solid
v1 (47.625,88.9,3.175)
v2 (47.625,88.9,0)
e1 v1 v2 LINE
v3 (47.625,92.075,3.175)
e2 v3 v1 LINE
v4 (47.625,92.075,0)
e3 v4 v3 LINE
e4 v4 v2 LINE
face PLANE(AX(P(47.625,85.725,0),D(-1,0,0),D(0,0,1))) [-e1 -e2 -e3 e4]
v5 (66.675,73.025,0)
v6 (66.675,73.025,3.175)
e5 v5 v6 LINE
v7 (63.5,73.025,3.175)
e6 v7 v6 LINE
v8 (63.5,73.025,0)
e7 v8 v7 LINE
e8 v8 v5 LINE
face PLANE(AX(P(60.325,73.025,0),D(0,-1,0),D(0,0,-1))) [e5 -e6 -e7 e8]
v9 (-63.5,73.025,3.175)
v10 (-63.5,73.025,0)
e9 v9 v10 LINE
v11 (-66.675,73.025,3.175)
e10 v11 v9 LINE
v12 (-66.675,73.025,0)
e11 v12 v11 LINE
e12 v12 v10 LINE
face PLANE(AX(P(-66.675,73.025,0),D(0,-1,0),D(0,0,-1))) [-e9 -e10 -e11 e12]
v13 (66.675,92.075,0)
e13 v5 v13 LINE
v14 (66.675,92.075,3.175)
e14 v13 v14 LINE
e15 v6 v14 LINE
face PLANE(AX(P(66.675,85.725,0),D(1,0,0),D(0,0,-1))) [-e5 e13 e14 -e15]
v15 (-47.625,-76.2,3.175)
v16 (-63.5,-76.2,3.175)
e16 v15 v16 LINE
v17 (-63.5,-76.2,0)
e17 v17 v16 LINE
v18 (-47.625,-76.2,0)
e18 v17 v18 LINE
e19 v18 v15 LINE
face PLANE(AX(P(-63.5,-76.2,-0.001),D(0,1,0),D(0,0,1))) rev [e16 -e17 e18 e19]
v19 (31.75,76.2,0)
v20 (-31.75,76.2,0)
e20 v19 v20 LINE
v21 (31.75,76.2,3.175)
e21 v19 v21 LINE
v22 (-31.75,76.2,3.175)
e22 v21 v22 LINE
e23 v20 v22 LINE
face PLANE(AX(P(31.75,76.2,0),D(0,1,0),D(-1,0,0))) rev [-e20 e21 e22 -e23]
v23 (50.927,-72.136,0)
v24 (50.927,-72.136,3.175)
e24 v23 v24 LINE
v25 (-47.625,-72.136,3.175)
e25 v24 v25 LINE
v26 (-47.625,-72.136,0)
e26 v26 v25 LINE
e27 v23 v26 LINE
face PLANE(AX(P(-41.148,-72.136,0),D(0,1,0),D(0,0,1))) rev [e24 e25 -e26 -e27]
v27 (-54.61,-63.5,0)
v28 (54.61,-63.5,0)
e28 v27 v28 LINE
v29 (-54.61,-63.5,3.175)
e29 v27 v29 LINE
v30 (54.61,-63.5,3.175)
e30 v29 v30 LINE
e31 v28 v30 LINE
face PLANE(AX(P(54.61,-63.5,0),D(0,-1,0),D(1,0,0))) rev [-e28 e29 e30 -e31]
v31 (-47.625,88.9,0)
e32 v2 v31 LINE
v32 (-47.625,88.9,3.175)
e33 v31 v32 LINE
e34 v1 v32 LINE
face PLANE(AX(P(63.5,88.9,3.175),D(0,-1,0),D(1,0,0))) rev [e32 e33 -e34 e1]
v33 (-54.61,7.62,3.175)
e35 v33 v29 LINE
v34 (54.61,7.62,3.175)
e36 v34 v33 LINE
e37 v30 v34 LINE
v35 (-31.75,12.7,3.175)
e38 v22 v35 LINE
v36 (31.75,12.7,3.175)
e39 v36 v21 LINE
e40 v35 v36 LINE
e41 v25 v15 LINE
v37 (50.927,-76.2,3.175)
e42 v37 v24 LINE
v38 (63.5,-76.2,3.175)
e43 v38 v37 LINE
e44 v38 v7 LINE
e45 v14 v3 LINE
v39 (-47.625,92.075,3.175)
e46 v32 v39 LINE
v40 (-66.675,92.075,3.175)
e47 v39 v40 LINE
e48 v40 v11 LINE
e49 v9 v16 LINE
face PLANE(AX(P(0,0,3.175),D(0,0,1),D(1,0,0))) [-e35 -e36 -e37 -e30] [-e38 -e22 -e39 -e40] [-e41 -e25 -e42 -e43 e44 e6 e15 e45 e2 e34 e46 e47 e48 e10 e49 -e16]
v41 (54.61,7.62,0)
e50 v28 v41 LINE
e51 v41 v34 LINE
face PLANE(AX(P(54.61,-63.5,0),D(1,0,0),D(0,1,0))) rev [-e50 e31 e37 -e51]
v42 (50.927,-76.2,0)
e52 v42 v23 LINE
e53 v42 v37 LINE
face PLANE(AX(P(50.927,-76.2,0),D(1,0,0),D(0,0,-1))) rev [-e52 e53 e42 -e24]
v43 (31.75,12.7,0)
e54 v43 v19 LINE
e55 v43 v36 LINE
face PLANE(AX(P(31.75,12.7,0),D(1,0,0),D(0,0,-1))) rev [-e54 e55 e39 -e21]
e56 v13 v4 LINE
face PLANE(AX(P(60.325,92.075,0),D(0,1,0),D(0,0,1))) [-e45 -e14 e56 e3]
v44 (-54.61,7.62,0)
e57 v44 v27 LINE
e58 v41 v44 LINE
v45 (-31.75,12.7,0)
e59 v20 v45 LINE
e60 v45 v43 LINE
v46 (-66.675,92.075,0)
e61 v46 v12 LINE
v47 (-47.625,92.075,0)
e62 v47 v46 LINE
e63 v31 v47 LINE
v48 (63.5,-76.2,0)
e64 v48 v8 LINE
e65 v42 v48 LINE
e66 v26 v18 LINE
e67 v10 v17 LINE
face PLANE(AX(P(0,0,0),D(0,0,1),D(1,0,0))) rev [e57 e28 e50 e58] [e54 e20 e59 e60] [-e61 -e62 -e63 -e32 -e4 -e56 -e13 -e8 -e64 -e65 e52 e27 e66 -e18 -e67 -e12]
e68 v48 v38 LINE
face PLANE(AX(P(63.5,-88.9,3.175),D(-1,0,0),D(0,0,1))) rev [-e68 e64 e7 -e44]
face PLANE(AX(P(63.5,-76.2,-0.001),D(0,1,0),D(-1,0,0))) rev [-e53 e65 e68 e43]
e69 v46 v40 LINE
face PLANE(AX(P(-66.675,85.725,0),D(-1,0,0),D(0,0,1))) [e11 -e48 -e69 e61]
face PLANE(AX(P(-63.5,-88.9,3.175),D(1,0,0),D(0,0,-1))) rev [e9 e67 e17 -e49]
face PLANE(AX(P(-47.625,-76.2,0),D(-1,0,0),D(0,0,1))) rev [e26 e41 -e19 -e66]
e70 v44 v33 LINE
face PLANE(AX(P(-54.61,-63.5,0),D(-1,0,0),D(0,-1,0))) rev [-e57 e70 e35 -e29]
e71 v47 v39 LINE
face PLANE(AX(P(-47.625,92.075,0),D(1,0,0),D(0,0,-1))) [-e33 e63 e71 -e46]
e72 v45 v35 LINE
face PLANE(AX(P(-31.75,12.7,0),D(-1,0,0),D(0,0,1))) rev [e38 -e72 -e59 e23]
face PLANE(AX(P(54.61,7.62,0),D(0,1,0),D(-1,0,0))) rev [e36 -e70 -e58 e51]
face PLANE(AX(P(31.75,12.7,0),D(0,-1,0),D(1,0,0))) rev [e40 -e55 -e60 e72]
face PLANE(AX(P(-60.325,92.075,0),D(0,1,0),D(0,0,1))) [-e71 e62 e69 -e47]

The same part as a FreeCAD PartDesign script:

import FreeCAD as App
import Part
import Sketcher
from FreeCAD import Vector
Q = App.Units.Quantity

doc = App.newDocument("Part")
body = doc.addObject("PartDesign::Body", "Body")

# Sketch on XY plane
sketch1 = body.newObject("Sketcher::SketchObject", "Sketch")
sketch1.AttachmentSupport = (doc.getObject("XY_Plane"), [""])
sketch1.MapMode = "FlatFace"
sketch1.addGeometry(Part.LineSegment(Vector(-64, 89, 0), Vector(-64, -89, 0)), False)
sketch1.addGeometry(Part.LineSegment(Vector(-64, -89, 0), Vector(64, -89, 0)), False)
sketch1.addGeometry(Part.LineSegment(Vector(64, -89, 0), Vector(64, 89, 0)), False)
sketch1.addGeometry(Part.LineSegment(Vector(64, 89, 0), Vector(-64, 89, 0)), False)
sketch1.addConstraint(Sketcher.Constraint("Coincident", 0, 2, 1, 1))
sketch1.addConstraint(Sketcher.Constraint("Coincident", 1, 2, 2, 1))
sketch1.addConstraint(Sketcher.Constraint("Coincident", 2, 2, 3, 1))
sketch1.addConstraint(Sketcher.Constraint("Coincident", 3, 2, 0, 1))
sketch1.addConstraint(Sketcher.Constraint("Vertical", 0))
sketch1.addConstraint(Sketcher.Constraint("Horizontal", 1))
sketch1.addConstraint(Sketcher.Constraint("Vertical", 2))
sketch1.addConstraint(Sketcher.Constraint("Horizontal", 3))
sketch1.addConstraint(Sketcher.Constraint("Symmetric", 0, 2, 2, 2, -1, 1))
sketch1.addConstraint(Sketcher.Constraint("DistanceX", 1, 1, 1, 2, Q("5 in")))
sketch1.addConstraint(Sketcher.Constraint("DistanceY", 0, 2, 0, 1, Q("7 in")))
pad1 = body.newObject("PartDesign::Pad", "Pad")
pad1.Profile = sketch1
pad1.Length = Q("0.125 in")

# Sketch on XY plane
sketch2 = body.newObject("Sketcher::SketchObject", "Sketch001")
sketch2.AttachmentSupport = (doc.getObject("XY_Plane"), [""])
sketch2.MapMode = "FlatFace"
sketch2.AttachmentOffset = App.Placement(Vector(0, 0, 0.125 * 25.4), App.Rotation())
sketch2.addGeometry(Part.LineSegment(Vector(-32, 76, 0), Vector(-32, 13, 0)), False)
sketch2.addGeometry(Part.LineSegment(Vector(-32, 13, 0), Vector(32, 13, 0)), False)
sketch2.addGeometry(Part.LineSegment(Vector(32, 13, 0), Vector(32, 76, 0)), False)
sketch2.addGeometry(Part.LineSegment(Vector(32, 76, 0), Vector(-32, 76, 0)), False)
sketch2.addGeometry(Part.LineSegment(Vector(-55, 8, 0), Vector(-55, -64, 0)), False)
sketch2.addGeometry(Part.LineSegment(Vector(-55, -64, 0), Vector(55, -64, 0)), False)
sketch2.addGeometry(Part.LineSegment(Vector(55, -64, 0), Vector(55, 8, 0)), False)
sketch2.addGeometry(Part.LineSegment(Vector(55, 8, 0), Vector(-55, 8, 0)), False)
sketch2.addConstraint(Sketcher.Constraint("Coincident", 0, 2, 1, 1))
sketch2.addConstraint(Sketcher.Constraint("Coincident", 1, 2, 2, 1))
sketch2.addConstraint(Sketcher.Constraint("Coincident", 2, 2, 3, 1))
sketch2.addConstraint(Sketcher.Constraint("Coincident", 3, 2, 0, 1))
sketch2.addConstraint(Sketcher.Constraint("Coincident", 4, 2, 5, 1))
sketch2.addConstraint(Sketcher.Constraint("Coincident", 5, 2, 6, 1))
sketch2.addConstraint(Sketcher.Constraint("Coincident", 6, 2, 7, 1))
sketch2.addConstraint(Sketcher.Constraint("Coincident", 7, 2, 4, 1))
sketch2.addConstraint(Sketcher.Constraint("Vertical", 0))
sketch2.addConstraint(Sketcher.Constraint("Horizontal", 1))
sketch2.addConstraint(Sketcher.Constraint("Vertical", 2))
sketch2.addConstraint(Sketcher.Constraint("Horizontal", 3))
sketch2.addConstraint(Sketcher.Constraint("Vertical", 4))
sketch2.addConstraint(Sketcher.Constraint("Horizontal", 5))
sketch2.addConstraint(Sketcher.Constraint("Vertical", 6))
sketch2.addConstraint(Sketcher.Constraint("Horizontal", 7))
sketch2.addConstraint(Sketcher.Constraint("Equal", 3, 0))
sketch2.addConstraint(Sketcher.Constraint("DistanceX", 1, 1, 1, 2, Q("2.5 in")))
sketch2.addConstraint(Sketcher.Constraint("DistanceX", 5, 1, 5, 2, Q("4.3 in")))
sketch2.addConstraint(Sketcher.Constraint("DistanceY", 4, 2, 4, 1, Q("2.8 in")))
sketch2.addConstraint(Sketcher.Constraint("DistanceY", -1, 1, 2, 2, Q("3 in")))
sketch2.addConstraint(Sketcher.Constraint("DistanceY", 4, 2, 0, 2, Q("3 in")))
sketch2.addConstraint(Sketcher.Constraint("DistanceX", 4, 2, 0, 2, Q("0.9 in")))
sketch2.addConstraint(Sketcher.Constraint("DistanceX", 0, 2, -1, 1, Q("1.25 in")))
pocket1 = body.newObject("PartDesign::Pocket", "Pocket")
pocket1.Profile = sketch2
pocket1.Type = "ThroughAll"

# Sketch on XY plane
sketch3 = body.newObject("Sketcher::SketchObject", "Sketch002")
sketch3.AttachmentSupport = (doc.getObject("XY_Plane"), [""])
sketch3.MapMode = "FlatFace"
sketch3.AttachmentOffset = App.Placement(Vector(0, 0, 0.125 * 25.4), App.Rotation())
sketch3.addGeometry(Part.LineSegment(Vector(-67, 92, 0), Vector(-67, 73, 0)), False)
sketch3.addGeometry(Part.LineSegment(Vector(-67, 73, 0), Vector(-60, 73, 0)), False)
sketch3.addGeometry(Part.LineSegment(Vector(-60, 73, 0), Vector(-60, 86, 0)), False)
sketch3.addGeometry(Part.LineSegment(Vector(-60, 86, 0), Vector(-48, 86, 0)), False)
sketch3.addGeometry(Part.LineSegment(Vector(-48, 86, 0), Vector(-48, 92, 0)), False)
sketch3.addGeometry(Part.LineSegment(Vector(-48, 92, 0), Vector(-67, 92, 0)), False)
sketch3.addGeometry(Part.LineSegment(Vector(67, 92, 0), Vector(48, 92, 0)), False)
sketch3.addGeometry(Part.LineSegment(Vector(48, 92, 0), Vector(48, 86, 0)), False)
sketch3.addGeometry(Part.LineSegment(Vector(48, 86, 0), Vector(60, 86, 0)), False)
sketch3.addGeometry(Part.LineSegment(Vector(60, 86, 0), Vector(60, 73, 0)), False)
sketch3.addGeometry(Part.LineSegment(Vector(60, 73, 0), Vector(67, 73, 0)), False)
sketch3.addGeometry(Part.LineSegment(Vector(67, 73, 0), Vector(67, 92, 0)), False)
sketch3.addConstraint(Sketcher.Constraint("Coincident", 0, 2, 1, 1))
sketch3.addConstraint(Sketcher.Constraint("Coincident", 1, 2, 2, 1))
sketch3.addConstraint(Sketcher.Constraint("Coincident", 2, 2, 3, 1))
sketch3.addConstraint(Sketcher.Constraint("Coincident", 3, 2, 4, 1))
sketch3.addConstraint(Sketcher.Constraint("Coincident", 4, 2, 5, 1))
sketch3.addConstraint(Sketcher.Constraint("Coincident", 5, 2, 0, 1))
sketch3.addConstraint(Sketcher.Constraint("Coincident", 6, 2, 7, 1))
sketch3.addConstraint(Sketcher.Constraint("Coincident", 7, 2, 8, 1))
sketch3.addConstraint(Sketcher.Constraint("Coincident", 8, 2, 9, 1))
sketch3.addConstraint(Sketcher.Constraint("Coincident", 9, 2, 10, 1))
sketch3.addConstraint(Sketcher.Constraint("Coincident", 10, 2, 11, 1))
sketch3.addConstraint(Sketcher.Constraint("Coincident", 11, 2, 6, 1))
sketch3.addConstraint(Sketcher.Constraint("Vertical", 0))
sketch3.addConstraint(Sketcher.Constraint("Horizontal", 1))
sketch3.addConstraint(Sketcher.Constraint("Vertical", 2))
sketch3.addConstraint(Sketcher.Constraint("Horizontal", 3))
sketch3.addConstraint(Sketcher.Constraint("Vertical", 4))
sketch3.addConstraint(Sketcher.Constraint("Horizontal", 5))
sketch3.addConstraint(Sketcher.Constraint("Horizontal", 6))
sketch3.addConstraint(Sketcher.Constraint("Vertical", 7))
sketch3.addConstraint(Sketcher.Constraint("Horizontal", 8))
sketch3.addConstraint(Sketcher.Constraint("Vertical", 9))
sketch3.addConstraint(Sketcher.Constraint("Horizontal", 10))
sketch3.addConstraint(Sketcher.Constraint("Vertical", 11))
sketch3.addConstraint(Sketcher.Constraint("Symmetric", 4, 2, 6, 2, -2))
sketch3.addConstraint(Sketcher.Constraint("Symmetric", 2, 2, 8, 2, -2))
sketch3.addConstraint(Sketcher.Constraint("Symmetric", 0, 2, 10, 2, -2))
sketch3.addConstraint(Sketcher.Constraint("Equal", 6, 0))
sketch3.addConstraint(Sketcher.Constraint("Equal", 8, 2))
sketch3.addConstraint(Sketcher.Constraint("DistanceX", 3, 1, 3, 2, Q("0.5 in")))
sketch3.addConstraint(Sketcher.Constraint("DistanceX", 1, 1, 1, 2, Q("0.25 in")))
sketch3.addConstraint(Sketcher.Constraint("DistanceX", 5, 2, 6, 2, Q("4.5 in")))
sketch3.addConstraint(Sketcher.Constraint("DistanceY", -1, 1, 0, 2, Q("2.875 in")))
pad2 = body.newObject("PartDesign::Pad", "Pad001")
pad2.Profile = sketch3
pad2.Length = Q("0.125 in")
pad2.Reversed = True

# Sketch on XY plane
sketch4 = body.newObject("Sketcher::SketchObject", "Sketch003")
sketch4.AttachmentSupport = (doc.getObject("XY_Plane"), [""])
sketch4.MapMode = "FlatFace"
sketch4.AttachmentOffset = App.Placement(Vector(0, 0, 0.125 * 25.4), App.Rotation())
sketch4.addGeometry(Part.LineSegment(Vector(-64, -76, 0), Vector(-64, -89, 0)), False)
sketch4.addGeometry(Part.LineSegment(Vector(-64, -89, 0), Vector(-44, -89, 0)), False)
sketch4.addGeometry(Part.LineSegment(Vector(-44, -89, 0), Vector(-44, -76, 0)), False)
sketch4.addGeometry(Part.LineSegment(Vector(-44, -76, 0), Vector(-64, -76, 0)), False)
sketch4.addConstraint(Sketcher.Constraint("Coincident", 0, 2, 1, 1))
sketch4.addConstraint(Sketcher.Constraint("Coincident", 1, 2, 2, 1))
sketch4.addConstraint(Sketcher.Constraint("Coincident", 2, 2, 3, 1))
sketch4.addConstraint(Sketcher.Constraint("Coincident", 3, 2, 0, 1))
sketch4.addConstraint(Sketcher.Constraint("Vertical", 0))
sketch4.addConstraint(Sketcher.Constraint("Horizontal", 1))
sketch4.addConstraint(Sketcher.Constraint("Vertical", 2))
sketch4.addConstraint(Sketcher.Constraint("Horizontal", 3))
sketch4.addConstraint(Sketcher.Constraint("DistanceY", 0, 2, 0, 1, Q("0.5 in")))
sketch4.addConstraint(Sketcher.Constraint("DistanceY", 2, 2, -1, 1, Q("3 in")))
sketch4.addConstraint(Sketcher.Constraint("DistanceX", 1, 1, 1, 2, Q("0.75 in")))
sketch4.addConstraint(Sketcher.Constraint("DistanceX", 0, 2, -1, 1, Q("2.5 in")))
pocket2 = body.newObject("PartDesign::Pocket", "Pocket001")
pocket2.Profile = sketch4
pocket2.Type = "UpToFirst"

# Sketch on XY plane
sketch5 = body.newObject("Sketcher::SketchObject", "Sketch004")
sketch5.AttachmentSupport = (doc.getObject("XY_Plane"), [""])
sketch5.MapMode = "FlatFace"
sketch5.AttachmentOffset = App.Placement(Vector(0, 0, 0.125 * 25.4), App.Rotation())
sketch5.addGeometry(Part.LineSegment(Vector(44, -76, 0), Vector(44, -89, 0)), False)
sketch5.addGeometry(Part.LineSegment(Vector(44, -89, 0), Vector(64, -89, 0)), False)
sketch5.addGeometry(Part.LineSegment(Vector(64, -89, 0), Vector(64, -76, 0)), False)
sketch5.addGeometry(Part.LineSegment(Vector(64, -76, 0), Vector(44, -76, 0)), False)
sketch5.addConstraint(Sketcher.Constraint("Coincident", 0, 2, 1, 1))
sketch5.addConstraint(Sketcher.Constraint("Coincident", 1, 2, 2, 1))
sketch5.addConstraint(Sketcher.Constraint("Coincident", 2, 2, 3, 1))
sketch5.addConstraint(Sketcher.Constraint("Coincident", 3, 2, 0, 1))
sketch5.addConstraint(Sketcher.Constraint("Vertical", 0))
sketch5.addConstraint(Sketcher.Constraint("Horizontal", 1))
sketch5.addConstraint(Sketcher.Constraint("Vertical", 2))
sketch5.addConstraint(Sketcher.Constraint("Horizontal", 3))
sketch5.addConstraint(Sketcher.Constraint("DistanceY", 0, 2, 0, 1, Q("0.5 in")))
sketch5.addConstraint(Sketcher.Constraint("DistanceY", 2, 2, -1, 1, Q("3 in")))
sketch5.addConstraint(Sketcher.Constraint("DistanceX", 1, 1, 1, 2, Q("0.75 in")))
sketch5.addConstraint(Sketcher.Constraint("DistanceX", -1, 1, 1, 2, Q("2.5 in")))
pocket3 = body.newObject("PartDesign::Pocket", "Pocket002")
pocket3.Profile = sketch5
pocket3.Type = "UpToFirst"

# Sketch on XY plane
sketch6 = body.newObject("Sketcher::SketchObject", "Sketch005")
sketch6.AttachmentSupport = (doc.getObject("XY_Plane"), [""])
sketch6.MapMode = "FlatFace"
sketch6.AttachmentOffset = App.Placement(Vector(0, 0, 0.125 * 25.4), App.Rotation())
sketch6.addGeometry(Part.LineSegment(Vector(-44.5, -76.2, 0), Vector(-44.5, -88.9, 0)), False)
sketch6.addGeometry(Part.LineSegment(Vector(-44.5, -88.9, 0), Vector(-41.1, -88.9, 0)), False)
sketch6.addGeometry(Part.LineSegment(Vector(-41.1, -88.9, 0), Vector(-41.1, -76.2, 0)), False)
sketch6.addGeometry(Part.LineSegment(Vector(-41.1, -76.2, 0), Vector(-44.5, -76.2, 0)), False)
sketch6.addConstraint(Sketcher.Constraint("Coincident", 0, 2, 1, 1))
sketch6.addConstraint(Sketcher.Constraint("Coincident", 1, 2, 2, 1))
sketch6.addConstraint(Sketcher.Constraint("Coincident", 2, 2, 3, 1))
sketch6.addConstraint(Sketcher.Constraint("Coincident", 3, 2, 0, 1))
sketch6.addConstraint(Sketcher.Constraint("Vertical", 0))
sketch6.addConstraint(Sketcher.Constraint("Horizontal", 1))
sketch6.addConstraint(Sketcher.Constraint("Vertical", 2))
sketch6.addConstraint(Sketcher.Constraint("Horizontal", 3))
sketch6.addConstraint(Sketcher.Constraint("DistanceY", 0, 2, 0, 1, Q("0.5 in")))
sketch6.addConstraint(Sketcher.Constraint("DistanceY", 2, 2, -1, 1, Q("3 in")))
sketch6.addConstraint(Sketcher.Constraint("DistanceX", 1, 1, 1, 2, Q("0.13 in")))
sketch6.addConstraint(Sketcher.Constraint("DistanceX", 0, 2, -1, 1, Q("1.75 in")))
pocket4 = body.newObject("PartDesign::Pocket", "Pocket003")
pocket4.Profile = sketch6
pocket4.Type = "ThroughAll"

# Sketch on XY plane
sketch7 = body.newObject("Sketcher::SketchObject", "Sketch006")
sketch7.AttachmentSupport = (doc.getObject("XY_Plane"), [""])
sketch7.MapMode = "FlatFace"
sketch7.AttachmentOffset = App.Placement(Vector(0, 0, 0.125 * 25.4), App.Rotation())
sketch7.addGeometry(Part.LineSegment(Vector(-41, -72, 0), Vector(-41, -89, 0)), False)
sketch7.addGeometry(Part.LineSegment(Vector(-41, -89, 0), Vector(44, -89, 0)), False)
sketch7.addGeometry(Part.LineSegment(Vector(44, -89, 0), Vector(44, -72, 0)), False)
sketch7.addGeometry(Part.LineSegment(Vector(44, -72, 0), Vector(-41, -72, 0)), False)
sketch7.addConstraint(Sketcher.Constraint("Coincident", 0, 2, 1, 1))
sketch7.addConstraint(Sketcher.Constraint("Coincident", 1, 2, 2, 1))
sketch7.addConstraint(Sketcher.Constraint("Coincident", 2, 2, 3, 1))
sketch7.addConstraint(Sketcher.Constraint("Coincident", 3, 2, 0, 1))
sketch7.addConstraint(Sketcher.Constraint("Vertical", 0))
sketch7.addConstraint(Sketcher.Constraint("Horizontal", 1))
sketch7.addConstraint(Sketcher.Constraint("Vertical", 2))
sketch7.addConstraint(Sketcher.Constraint("Horizontal", 3))
sketch7.addConstraint(Sketcher.Constraint("DistanceX", 1, 1, 1, 2, Q("3.37 in")))
sketch7.addConstraint(Sketcher.Constraint("DistanceY", 0, 2, 0, 1, Q("0.66 in")))
sketch7.addConstraint(Sketcher.Constraint("DistanceY", 0, 2, -1, 1, Q("3.5 in")))
sketch7.addConstraint(Sketcher.Constraint("DistanceX", 0, 2, -1, 1, Q("1.62 in")))
pocket5 = body.newObject("PartDesign::Pocket", "Pocket004")
pocket5.Profile = sketch7
pocket5.Type = "ThroughAll"

# Sketch on XY plane
sketch8 = body.newObject("Sketcher::SketchObject", "Sketch007")
sketch8.AttachmentSupport = (doc.getObject("XY_Plane"), [""])
sketch8.MapMode = "FlatFace"
sketch8.AttachmentOffset = App.Placement(Vector(0, 0, 0.125 * 25.4), App.Rotation())
sketch8.addGeometry(Part.LineSegment(Vector(-47.6, -72.1, 0), Vector(-47.6, -76.2, 0)), False)
sketch8.addGeometry(Part.LineSegment(Vector(-47.6, -76.2, 0), Vector(-41.1, -76.2, 0)), False)
sketch8.addGeometry(Part.LineSegment(Vector(-41.1, -76.2, 0), Vector(-41.1, -72.1, 0)), False)
sketch8.addGeometry(Part.LineSegment(Vector(-41.1, -72.1, 0), Vector(-47.6, -72.1, 0)), False)
sketch8.addGeometry(Part.LineSegment(Vector(44.5, -72.1, 0), Vector(44.5, -76.2, 0)), False)
sketch8.addGeometry(Part.LineSegment(Vector(44.5, -76.2, 0), Vector(50.9, -76.2, 0)), False)
sketch8.addGeometry(Part.LineSegment(Vector(50.9, -76.2, 0), Vector(50.9, -72.1, 0)), False)
sketch8.addGeometry(Part.LineSegment(Vector(50.9, -72.1, 0), Vector(44.5, -72.1, 0)), False)
sketch8.addConstraint(Sketcher.Constraint("Coincident", 0, 2, 1, 1))
sketch8.addConstraint(Sketcher.Constraint("Coincident", 1, 2, 2, 1))
sketch8.addConstraint(Sketcher.Constraint("Coincident", 2, 2, 3, 1))
sketch8.addConstraint(Sketcher.Constraint("Coincident", 3, 2, 0, 1))
sketch8.addConstraint(Sketcher.Constraint("Coincident", 4, 2, 5, 1))
sketch8.addConstraint(Sketcher.Constraint("Coincident", 5, 2, 6, 1))
sketch8.addConstraint(Sketcher.Constraint("Coincident", 6, 2, 7, 1))
sketch8.addConstraint(Sketcher.Constraint("Coincident", 7, 2, 4, 1))
sketch8.addConstraint(Sketcher.Constraint("Vertical", 0))
sketch8.addConstraint(Sketcher.Constraint("Horizontal", 1))
sketch8.addConstraint(Sketcher.Constraint("Vertical", 2))
sketch8.addConstraint(Sketcher.Constraint("Horizontal", 3))
sketch8.addConstraint(Sketcher.Constraint("Vertical", 4))
sketch8.addConstraint(Sketcher.Constraint("Horizontal", 5))
sketch8.addConstraint(Sketcher.Constraint("Vertical", 6))
sketch8.addConstraint(Sketcher.Constraint("Horizontal", 7))
sketch8.addConstraint(Sketcher.Constraint("Horizontal", 1, 2, 4, 2))
sketch8.addConstraint(Sketcher.Constraint("Horizontal", 3, 2, 6, 2))
sketch8.addConstraint(Sketcher.Constraint("Equal", 3, 5))
sketch8.addConstraint(Sketcher.Constraint("DistanceY", 0, 2, -1, 1, Q("3 in")))
sketch8.addConstraint(Sketcher.Constraint("DistanceY", 0, 2, 0, 1, Q("0.16 in")))
sketch8.addConstraint(Sketcher.Constraint("DistanceX", 1, 1, 1, 2, Q("0.255 in")))
sketch8.addConstraint(Sketcher.Constraint("DistanceX", 1, 2, -1, 1, Q("1.62 in")))
sketch8.addConstraint(Sketcher.Constraint("DistanceX", -1, 1, 4, 2, Q("1.75 in")))
pocket6 = body.newObject("PartDesign::Pocket", "Pocket005")
pocket6.Profile = sketch8
pocket6.Type = "ThroughAll"

doc.recompute()
